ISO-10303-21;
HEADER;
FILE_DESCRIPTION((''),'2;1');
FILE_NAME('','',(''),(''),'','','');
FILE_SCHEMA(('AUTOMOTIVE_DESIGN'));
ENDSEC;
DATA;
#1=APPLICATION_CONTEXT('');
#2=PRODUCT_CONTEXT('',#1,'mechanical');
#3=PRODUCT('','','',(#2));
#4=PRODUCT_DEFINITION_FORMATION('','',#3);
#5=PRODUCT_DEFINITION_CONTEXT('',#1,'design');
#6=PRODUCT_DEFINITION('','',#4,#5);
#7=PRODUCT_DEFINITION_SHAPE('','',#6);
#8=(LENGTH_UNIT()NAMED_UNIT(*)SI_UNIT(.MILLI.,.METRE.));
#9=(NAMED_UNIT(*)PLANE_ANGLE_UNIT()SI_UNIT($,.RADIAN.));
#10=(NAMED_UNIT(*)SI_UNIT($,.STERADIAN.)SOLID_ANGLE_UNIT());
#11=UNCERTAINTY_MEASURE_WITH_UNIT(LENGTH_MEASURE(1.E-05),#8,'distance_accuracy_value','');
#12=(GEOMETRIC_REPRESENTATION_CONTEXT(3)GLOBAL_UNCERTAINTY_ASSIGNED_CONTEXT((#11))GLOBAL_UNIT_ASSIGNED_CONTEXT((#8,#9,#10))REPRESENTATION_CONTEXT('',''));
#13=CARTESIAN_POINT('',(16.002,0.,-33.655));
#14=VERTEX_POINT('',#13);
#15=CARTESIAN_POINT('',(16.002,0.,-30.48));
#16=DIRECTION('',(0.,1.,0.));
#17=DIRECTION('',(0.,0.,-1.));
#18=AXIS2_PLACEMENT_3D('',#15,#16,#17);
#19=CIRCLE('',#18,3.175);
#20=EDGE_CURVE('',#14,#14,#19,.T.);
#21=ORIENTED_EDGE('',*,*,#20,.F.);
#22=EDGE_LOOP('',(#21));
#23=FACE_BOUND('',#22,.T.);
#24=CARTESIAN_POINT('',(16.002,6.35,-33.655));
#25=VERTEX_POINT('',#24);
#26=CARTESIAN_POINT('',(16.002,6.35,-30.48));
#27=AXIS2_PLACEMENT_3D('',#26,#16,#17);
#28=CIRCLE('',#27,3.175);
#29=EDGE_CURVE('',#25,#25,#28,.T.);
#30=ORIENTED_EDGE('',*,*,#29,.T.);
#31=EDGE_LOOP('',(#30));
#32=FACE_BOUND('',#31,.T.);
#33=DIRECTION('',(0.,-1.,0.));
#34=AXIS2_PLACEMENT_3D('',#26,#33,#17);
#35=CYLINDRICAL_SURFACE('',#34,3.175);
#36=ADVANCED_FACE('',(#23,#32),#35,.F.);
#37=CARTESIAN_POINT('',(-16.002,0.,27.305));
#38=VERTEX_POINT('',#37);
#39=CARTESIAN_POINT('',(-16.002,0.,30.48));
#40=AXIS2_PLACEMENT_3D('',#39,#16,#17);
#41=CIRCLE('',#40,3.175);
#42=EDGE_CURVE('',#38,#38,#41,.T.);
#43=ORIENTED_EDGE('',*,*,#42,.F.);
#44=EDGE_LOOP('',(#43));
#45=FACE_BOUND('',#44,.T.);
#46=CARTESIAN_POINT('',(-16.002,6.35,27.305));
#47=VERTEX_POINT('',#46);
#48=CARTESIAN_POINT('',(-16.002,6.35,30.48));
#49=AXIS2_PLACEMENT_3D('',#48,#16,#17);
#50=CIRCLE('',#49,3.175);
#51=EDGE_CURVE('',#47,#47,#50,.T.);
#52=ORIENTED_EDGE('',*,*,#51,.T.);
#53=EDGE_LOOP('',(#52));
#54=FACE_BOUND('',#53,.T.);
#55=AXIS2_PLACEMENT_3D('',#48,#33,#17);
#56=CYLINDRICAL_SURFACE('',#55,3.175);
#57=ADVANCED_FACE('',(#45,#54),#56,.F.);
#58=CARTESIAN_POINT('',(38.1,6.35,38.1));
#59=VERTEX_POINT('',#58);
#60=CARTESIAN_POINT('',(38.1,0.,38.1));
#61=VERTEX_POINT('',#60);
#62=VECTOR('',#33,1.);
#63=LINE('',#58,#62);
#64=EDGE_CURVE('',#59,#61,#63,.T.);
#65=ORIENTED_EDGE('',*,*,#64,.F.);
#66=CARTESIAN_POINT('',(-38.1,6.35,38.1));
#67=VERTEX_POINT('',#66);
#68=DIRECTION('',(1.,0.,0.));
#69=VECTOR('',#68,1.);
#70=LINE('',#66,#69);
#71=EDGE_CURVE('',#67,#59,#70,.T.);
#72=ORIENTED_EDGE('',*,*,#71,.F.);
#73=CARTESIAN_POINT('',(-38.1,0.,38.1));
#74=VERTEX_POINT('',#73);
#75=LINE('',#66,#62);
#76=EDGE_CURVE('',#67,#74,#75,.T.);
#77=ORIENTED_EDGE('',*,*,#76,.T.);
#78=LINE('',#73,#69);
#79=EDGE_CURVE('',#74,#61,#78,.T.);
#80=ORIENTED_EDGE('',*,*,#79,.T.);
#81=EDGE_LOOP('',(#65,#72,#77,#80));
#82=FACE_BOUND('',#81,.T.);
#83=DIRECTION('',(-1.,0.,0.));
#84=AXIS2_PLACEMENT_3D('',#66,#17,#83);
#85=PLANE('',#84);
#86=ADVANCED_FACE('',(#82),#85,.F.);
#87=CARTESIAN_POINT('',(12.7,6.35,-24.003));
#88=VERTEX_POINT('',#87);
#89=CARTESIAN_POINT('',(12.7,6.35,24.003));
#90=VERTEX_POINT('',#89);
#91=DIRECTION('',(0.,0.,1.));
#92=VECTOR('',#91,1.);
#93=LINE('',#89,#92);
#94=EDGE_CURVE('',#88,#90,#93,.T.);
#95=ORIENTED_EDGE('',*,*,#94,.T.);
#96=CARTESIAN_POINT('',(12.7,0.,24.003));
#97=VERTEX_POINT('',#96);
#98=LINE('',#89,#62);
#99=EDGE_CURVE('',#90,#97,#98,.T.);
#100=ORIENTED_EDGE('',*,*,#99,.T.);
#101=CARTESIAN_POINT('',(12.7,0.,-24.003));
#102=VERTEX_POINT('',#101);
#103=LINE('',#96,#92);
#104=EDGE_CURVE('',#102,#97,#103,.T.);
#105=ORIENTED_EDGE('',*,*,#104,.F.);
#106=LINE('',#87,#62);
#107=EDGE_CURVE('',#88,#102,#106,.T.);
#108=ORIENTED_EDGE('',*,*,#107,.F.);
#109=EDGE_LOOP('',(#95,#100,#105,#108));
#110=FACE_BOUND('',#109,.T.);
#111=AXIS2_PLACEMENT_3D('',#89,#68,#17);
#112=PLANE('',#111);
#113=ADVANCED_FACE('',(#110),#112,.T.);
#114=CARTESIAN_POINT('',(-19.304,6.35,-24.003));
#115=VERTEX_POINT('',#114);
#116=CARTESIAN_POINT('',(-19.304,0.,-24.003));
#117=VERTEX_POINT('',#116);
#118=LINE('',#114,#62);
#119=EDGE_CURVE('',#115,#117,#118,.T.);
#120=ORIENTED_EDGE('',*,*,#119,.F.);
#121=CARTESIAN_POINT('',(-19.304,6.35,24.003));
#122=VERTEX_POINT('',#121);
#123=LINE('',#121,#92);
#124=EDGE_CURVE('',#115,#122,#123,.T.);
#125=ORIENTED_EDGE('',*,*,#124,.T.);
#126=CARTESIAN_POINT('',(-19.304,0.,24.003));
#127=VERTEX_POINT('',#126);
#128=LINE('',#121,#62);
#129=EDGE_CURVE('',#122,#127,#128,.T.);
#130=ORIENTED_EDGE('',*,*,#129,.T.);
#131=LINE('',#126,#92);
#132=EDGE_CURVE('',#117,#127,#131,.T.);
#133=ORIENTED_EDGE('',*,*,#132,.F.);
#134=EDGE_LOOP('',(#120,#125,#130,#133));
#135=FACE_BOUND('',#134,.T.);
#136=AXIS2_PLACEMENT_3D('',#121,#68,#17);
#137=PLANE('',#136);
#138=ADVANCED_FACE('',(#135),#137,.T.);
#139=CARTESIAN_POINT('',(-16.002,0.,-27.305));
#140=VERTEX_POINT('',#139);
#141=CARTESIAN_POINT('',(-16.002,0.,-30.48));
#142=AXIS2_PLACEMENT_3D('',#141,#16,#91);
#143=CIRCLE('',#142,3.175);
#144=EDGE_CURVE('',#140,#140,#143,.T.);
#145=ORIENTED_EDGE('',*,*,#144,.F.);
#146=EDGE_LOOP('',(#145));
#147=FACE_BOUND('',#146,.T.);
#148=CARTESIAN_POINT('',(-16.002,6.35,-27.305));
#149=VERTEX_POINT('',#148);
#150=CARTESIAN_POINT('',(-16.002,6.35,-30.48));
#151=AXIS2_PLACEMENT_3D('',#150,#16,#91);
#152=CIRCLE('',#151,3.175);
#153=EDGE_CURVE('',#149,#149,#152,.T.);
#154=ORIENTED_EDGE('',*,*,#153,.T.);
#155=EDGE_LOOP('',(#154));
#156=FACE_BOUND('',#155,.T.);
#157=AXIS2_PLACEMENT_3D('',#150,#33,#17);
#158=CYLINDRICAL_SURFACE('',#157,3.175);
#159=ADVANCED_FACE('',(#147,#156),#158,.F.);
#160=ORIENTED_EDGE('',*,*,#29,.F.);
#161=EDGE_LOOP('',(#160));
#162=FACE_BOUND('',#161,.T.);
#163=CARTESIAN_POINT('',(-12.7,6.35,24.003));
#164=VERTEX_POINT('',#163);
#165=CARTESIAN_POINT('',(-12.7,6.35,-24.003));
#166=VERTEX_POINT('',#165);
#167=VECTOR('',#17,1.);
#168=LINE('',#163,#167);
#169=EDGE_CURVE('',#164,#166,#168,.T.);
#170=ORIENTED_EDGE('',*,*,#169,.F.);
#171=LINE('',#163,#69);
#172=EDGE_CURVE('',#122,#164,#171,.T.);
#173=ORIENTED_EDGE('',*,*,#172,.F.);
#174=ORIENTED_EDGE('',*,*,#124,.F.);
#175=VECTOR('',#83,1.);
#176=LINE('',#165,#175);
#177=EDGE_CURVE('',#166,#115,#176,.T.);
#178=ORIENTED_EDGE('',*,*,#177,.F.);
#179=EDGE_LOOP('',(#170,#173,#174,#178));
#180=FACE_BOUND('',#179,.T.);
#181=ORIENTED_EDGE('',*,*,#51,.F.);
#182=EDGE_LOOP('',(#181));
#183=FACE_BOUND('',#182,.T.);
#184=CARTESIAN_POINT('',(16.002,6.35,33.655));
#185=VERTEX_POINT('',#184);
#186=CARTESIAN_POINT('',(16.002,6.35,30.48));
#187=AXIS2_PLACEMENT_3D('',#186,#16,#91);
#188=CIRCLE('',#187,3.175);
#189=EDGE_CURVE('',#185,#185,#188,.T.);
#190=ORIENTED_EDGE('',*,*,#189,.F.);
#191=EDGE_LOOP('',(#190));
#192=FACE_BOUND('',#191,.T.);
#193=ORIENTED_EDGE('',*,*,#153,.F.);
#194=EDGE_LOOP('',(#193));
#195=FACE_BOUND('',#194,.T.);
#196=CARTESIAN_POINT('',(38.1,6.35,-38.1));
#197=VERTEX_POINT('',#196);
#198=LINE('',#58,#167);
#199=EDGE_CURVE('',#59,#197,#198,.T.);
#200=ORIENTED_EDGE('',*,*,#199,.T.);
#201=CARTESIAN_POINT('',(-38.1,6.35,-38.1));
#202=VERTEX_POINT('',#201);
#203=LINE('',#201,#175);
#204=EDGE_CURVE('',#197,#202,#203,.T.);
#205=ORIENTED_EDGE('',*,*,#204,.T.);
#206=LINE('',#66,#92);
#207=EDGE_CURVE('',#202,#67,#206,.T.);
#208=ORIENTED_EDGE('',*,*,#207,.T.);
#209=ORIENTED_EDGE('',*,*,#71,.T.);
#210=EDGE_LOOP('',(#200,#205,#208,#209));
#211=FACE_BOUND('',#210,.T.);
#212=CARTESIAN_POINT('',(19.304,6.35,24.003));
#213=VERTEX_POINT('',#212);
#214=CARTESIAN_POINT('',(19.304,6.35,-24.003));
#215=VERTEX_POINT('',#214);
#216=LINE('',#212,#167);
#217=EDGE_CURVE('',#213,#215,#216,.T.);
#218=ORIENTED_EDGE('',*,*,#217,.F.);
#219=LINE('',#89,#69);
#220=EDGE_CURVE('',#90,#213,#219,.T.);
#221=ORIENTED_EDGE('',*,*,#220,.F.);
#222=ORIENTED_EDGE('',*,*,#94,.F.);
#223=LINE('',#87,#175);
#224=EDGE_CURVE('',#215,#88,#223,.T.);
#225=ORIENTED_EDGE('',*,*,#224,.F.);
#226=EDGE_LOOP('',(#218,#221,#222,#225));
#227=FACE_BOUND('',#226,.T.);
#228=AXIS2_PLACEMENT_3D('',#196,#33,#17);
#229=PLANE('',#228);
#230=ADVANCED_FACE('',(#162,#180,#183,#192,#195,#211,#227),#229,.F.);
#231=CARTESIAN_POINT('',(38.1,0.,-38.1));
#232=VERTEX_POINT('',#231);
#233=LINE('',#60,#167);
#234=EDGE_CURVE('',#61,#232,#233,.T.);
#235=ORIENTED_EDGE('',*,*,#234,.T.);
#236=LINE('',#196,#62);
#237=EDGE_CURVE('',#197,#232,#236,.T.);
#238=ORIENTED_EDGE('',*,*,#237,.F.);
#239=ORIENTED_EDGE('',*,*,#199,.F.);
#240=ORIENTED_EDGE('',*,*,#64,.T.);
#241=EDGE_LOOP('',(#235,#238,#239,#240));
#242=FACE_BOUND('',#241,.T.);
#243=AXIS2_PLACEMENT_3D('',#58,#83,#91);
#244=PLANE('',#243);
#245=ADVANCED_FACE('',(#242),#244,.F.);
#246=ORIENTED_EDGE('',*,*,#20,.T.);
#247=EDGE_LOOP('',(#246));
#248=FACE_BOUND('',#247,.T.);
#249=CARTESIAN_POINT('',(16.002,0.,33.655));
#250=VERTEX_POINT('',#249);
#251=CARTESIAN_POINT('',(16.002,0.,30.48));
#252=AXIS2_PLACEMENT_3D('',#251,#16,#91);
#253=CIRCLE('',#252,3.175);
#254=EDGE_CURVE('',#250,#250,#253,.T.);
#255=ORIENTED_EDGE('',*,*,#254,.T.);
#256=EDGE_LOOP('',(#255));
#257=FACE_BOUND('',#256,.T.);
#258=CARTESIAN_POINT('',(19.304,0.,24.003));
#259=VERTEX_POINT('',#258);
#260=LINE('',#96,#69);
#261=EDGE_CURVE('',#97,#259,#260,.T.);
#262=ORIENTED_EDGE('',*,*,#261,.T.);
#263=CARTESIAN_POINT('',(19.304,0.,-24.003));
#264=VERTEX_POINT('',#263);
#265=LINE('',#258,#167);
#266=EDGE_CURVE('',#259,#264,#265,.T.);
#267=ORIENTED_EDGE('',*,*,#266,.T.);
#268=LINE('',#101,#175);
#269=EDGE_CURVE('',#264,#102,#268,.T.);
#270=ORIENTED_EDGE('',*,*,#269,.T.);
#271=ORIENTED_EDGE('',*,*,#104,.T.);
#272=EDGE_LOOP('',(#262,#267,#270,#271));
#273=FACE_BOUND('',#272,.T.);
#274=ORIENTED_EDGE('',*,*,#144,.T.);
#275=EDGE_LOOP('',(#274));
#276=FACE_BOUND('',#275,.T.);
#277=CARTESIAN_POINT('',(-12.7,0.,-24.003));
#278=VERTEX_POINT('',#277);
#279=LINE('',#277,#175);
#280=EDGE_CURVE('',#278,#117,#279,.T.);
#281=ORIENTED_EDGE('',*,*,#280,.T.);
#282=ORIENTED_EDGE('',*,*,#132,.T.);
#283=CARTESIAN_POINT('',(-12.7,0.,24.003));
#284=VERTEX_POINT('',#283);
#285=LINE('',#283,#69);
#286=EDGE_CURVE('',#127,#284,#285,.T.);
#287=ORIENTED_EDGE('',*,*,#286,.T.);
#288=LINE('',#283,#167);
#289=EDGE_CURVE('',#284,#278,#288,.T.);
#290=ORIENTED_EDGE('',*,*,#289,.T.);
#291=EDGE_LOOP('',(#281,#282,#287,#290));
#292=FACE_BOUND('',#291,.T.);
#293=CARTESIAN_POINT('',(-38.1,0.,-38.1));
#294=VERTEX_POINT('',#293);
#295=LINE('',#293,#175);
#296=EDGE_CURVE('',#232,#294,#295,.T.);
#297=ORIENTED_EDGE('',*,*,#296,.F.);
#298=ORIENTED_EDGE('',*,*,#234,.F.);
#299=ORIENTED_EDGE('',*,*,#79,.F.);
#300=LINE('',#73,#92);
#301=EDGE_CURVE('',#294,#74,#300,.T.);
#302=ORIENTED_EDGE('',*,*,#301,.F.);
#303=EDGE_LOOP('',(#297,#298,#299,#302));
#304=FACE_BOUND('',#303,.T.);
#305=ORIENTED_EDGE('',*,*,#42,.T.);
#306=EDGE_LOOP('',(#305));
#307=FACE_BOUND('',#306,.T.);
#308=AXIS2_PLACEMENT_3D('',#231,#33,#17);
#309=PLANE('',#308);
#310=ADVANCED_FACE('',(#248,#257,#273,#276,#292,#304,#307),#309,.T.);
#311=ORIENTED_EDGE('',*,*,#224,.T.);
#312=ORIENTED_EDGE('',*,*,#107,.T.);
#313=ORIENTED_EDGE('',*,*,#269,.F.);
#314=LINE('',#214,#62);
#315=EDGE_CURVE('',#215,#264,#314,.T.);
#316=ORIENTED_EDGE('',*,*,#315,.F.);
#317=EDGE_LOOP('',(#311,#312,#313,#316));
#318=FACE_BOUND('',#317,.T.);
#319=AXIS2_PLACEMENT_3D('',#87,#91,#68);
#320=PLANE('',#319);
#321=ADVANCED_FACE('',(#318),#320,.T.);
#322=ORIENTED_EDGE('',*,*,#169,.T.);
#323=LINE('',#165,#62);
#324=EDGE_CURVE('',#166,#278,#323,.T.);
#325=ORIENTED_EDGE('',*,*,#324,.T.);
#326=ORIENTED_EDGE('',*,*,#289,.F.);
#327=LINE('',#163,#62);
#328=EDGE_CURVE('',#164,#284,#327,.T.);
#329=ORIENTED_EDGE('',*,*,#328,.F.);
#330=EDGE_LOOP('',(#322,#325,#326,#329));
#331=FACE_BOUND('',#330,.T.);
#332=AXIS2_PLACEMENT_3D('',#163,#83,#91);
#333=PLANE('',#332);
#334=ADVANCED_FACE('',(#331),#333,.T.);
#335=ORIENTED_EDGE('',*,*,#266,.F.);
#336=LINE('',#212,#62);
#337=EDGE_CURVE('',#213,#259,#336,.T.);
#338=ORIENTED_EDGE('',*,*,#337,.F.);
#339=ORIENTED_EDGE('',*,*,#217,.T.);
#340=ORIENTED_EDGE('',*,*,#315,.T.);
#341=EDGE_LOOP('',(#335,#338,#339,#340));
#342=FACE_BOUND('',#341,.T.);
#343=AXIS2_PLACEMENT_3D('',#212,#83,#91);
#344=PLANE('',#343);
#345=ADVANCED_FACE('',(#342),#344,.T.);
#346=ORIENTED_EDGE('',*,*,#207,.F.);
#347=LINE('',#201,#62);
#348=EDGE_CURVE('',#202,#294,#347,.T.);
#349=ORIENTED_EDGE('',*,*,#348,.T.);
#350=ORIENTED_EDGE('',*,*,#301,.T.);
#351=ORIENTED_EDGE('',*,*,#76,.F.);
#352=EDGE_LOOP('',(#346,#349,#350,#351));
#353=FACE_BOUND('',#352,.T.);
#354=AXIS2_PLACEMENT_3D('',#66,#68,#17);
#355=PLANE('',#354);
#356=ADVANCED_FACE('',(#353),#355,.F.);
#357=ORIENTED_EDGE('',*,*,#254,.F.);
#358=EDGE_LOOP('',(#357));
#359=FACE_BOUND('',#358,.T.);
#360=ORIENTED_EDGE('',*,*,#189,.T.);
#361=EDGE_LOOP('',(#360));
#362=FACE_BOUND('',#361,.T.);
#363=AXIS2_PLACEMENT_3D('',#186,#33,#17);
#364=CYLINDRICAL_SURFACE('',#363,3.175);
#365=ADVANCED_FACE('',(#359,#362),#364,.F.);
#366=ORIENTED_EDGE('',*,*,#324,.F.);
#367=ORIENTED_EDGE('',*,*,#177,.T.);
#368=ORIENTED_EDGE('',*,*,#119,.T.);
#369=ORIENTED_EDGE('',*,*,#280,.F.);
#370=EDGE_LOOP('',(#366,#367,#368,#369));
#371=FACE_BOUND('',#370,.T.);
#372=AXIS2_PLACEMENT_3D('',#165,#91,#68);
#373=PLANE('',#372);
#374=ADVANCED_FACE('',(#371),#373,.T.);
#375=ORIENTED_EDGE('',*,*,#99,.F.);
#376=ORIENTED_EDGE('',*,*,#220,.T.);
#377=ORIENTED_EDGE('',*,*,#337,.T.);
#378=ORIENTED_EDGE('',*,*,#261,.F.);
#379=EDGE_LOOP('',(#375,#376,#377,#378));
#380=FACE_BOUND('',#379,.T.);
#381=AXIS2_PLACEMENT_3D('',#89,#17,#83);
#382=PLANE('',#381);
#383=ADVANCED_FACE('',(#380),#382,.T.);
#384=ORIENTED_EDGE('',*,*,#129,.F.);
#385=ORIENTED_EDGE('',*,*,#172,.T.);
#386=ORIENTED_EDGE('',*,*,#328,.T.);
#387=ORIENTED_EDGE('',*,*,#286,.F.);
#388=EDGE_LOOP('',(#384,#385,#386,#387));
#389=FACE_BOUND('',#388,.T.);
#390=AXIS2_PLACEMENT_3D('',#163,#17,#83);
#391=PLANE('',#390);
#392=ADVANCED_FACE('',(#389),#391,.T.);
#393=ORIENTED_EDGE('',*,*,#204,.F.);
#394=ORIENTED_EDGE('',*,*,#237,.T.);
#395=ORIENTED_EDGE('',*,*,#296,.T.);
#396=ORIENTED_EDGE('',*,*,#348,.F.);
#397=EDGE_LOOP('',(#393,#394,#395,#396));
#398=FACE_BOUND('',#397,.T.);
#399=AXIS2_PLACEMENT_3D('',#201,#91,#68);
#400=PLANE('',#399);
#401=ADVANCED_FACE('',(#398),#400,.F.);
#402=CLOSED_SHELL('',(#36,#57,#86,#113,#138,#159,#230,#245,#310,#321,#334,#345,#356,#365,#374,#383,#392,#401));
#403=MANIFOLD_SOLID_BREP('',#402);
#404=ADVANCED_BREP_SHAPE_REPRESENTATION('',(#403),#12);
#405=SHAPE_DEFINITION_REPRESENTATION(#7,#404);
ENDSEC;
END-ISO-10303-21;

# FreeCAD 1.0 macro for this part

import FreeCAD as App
import Part
import Sketcher
from FreeCAD import Vector
Q = App.Units.Quantity

doc = App.newDocument("Part")
body = doc.addObject("PartDesign::Body", "Body")

# Sketch on XZ plane
sketch1 = doc.addObject("Sketcher::SketchObject", "Sketch")
body.addObject(sketch1)
sketch1.AttachmentSupport = (doc.XZ_Plane, [""])
sketch1.MapMode = "FlatFace"
sketch1.addGeometry(Part.LineSegment(Vector(-38, -38, 0), Vector(-38, 38, 0)), False)
sketch1.addGeometry(Part.LineSegment(Vector(-38, 38, 0), Vector(38, 38, 0)), False)
sketch1.addGeometry(Part.LineSegment(Vector(38, 38, 0), Vector(38, -38, 0)), False)
sketch1.addGeometry(Part.LineSegment(Vector(38, -38, 0), Vector(-38, -38, 0)), False)
sketch1.addConstraint(Sketcher.Constraint("Coincident", 0, 2, 1, 1))
sketch1.addConstraint(Sketcher.Constraint("Coincident", 1, 2, 2, 1))
sketch1.addConstraint(Sketcher.Constraint("Coincident", 2, 2, 3, 1))
sketch1.addConstraint(Sketcher.Constraint("Coincident", 3, 2, 0, 1))
sketch1.addConstraint(Sketcher.Constraint("Vertical", 0))
sketch1.addConstraint(Sketcher.Constraint("Horizontal", 1))
sketch1.addConstraint(Sketcher.Constraint("Vertical", 2))
sketch1.addConstraint(Sketcher.Constraint("Horizontal", 3))
sketch1.addConstraint(Sketcher.Constraint("Symmetric", 0, 2, 2, 2, -1, 1))
sketch1.addConstraint(Sketcher.Constraint("Equal", 3, 0))
sketch1.addConstraint(Sketcher.Constraint("DistanceX", 1, 1, 1, 2, Q("3 in")))
pad1 = doc.addObject("PartDesign::Pad", "Pad")
body.addObject(pad1)
pad1.Profile = sketch1
pad1.Length = Q("0.25 in")
pad1.Reversed = True

# Sketch on XZ plane
sketch2 = doc.addObject("Sketcher::SketchObject", "Sketch001")
body.addObject(sketch2)
sketch2.AttachmentSupport = (doc.XZ_Plane, [""])
sketch2.MapMode = "FlatFace"
sketch2.addGeometry(Part.LineSegment(Vector(13, -24, 0), Vector(13, 24, 0)), False)
sketch2.addGeometry(Part.LineSegment(Vector(13, 24, 0), Vector(19, 24, 0)), False)
sketch2.addGeometry(Part.LineSegment(Vector(19, 24, 0), Vector(19, -24, 0)), False)
sketch2.addGeometry(Part.LineSegment(Vector(19, -24, 0), Vector(13, -24, 0)), False)
sketch2.addGeometry(Part.LineSegment(Vector(-19, -24, 0), Vector(-19, 24, 0)), False)
sketch2.addGeometry(Part.LineSegment(Vector(-19, 24, 0), Vector(-13, 24, 0)), False)
sketch2.addGeometry(Part.LineSegment(Vector(-13, 24, 0), Vector(-13, -24, 0)), False)
sketch2.addGeometry(Part.LineSegment(Vector(-13, -24, 0), Vector(-19, -24, 0)), False)
sketch2.addConstraint(Sketcher.Constraint("Coincident", 0, 2, 1, 1))
sketch2.addConstraint(Sketcher.Constraint("Coincident", 1, 2, 2, 1))
sketch2.addConstraint(Sketcher.Constraint("Coincident", 2, 2, 3, 1))
sketch2.addConstraint(Sketcher.Constraint("Coincident", 3, 2, 0, 1))
sketch2.addConstraint(Sketcher.Constraint("Coincident", 4, 2, 5, 1))
sketch2.addConstraint(Sketcher.Constraint("Coincident", 5, 2, 6, 1))
sketch2.addConstraint(Sketcher.Constraint("Coincident", 6, 2, 7, 1))
sketch2.addConstraint(Sketcher.Constraint("Coincident", 7, 2, 4, 1))
sketch2.addConstraint(Sketcher.Constraint("Vertical", 0))
sketch2.addConstraint(Sketcher.Constraint("Horizontal", 1))
sketch2.addConstraint(Sketcher.Constraint("Vertical", 2))
sketch2.addConstraint(Sketcher.Constraint("Horizontal", 3))
sketch2.addConstraint(Sketcher.Constraint("Vertical", 4))
sketch2.addConstraint(Sketcher.Constraint("Horizontal", 5))
sketch2.addConstraint(Sketcher.Constraint("Vertical", 6))
sketch2.addConstraint(Sketcher.Constraint("Horizontal", 7))
sketch2.addConstraint(Sketcher.Constraint("Symmetric", 2, 2, 4, 2, -1, 1))
sketch2.addConstraint(Sketcher.Constraint("Symmetric", 0, 2, 6, 2, -1, 1))
sketch2.addConstraint(Sketcher.Constraint("Horizontal", 1, 2, 4, 2))
sketch2.addConstraint(Sketcher.Constraint("DistanceX", 5, 2, 0, 2, Q("1 in")))
sketch2.addConstraint(Sketcher.Constraint("DistanceX", 1, 1, 1, 2, Q("0.26 in")))
sketch2.addConstraint(Sketcher.Constraint("DistanceY", 0, 1, 0, 2, Q("1.89 in")))
pocket1 = doc.addObject("PartDesign::Pocket", "Pocket")
body.addObject(pocket1)
pocket1.Profile = sketch2
pocket1.Type = "ThroughAll"

# Sketch on XZ plane
sketch3 = doc.addObject("Sketcher::SketchObject", "Sketch002")
body.addObject(sketch3)
sketch3.AttachmentSupport = (doc.XZ_Plane, [""])
sketch3.MapMode = "FlatFace"
sketch3.addGeometry(Part.Circle(Vector(-16, -30.5, 0), Vector(0, 0, 1), 3.2), False)
sketch3.addGeometry(Part.Circle(Vector(-16, 30.5, 0), Vector(0, 0, 1), 3.2), False)
sketch3.addGeometry(Part.Circle(Vector(16, 30.5, 0), Vector(0, 0, 1), 3.2), False)
sketch3.addGeometry(Part.Circle(Vector(16, -30.5, 0), Vector(0, 0, 1), 3.2), False)
sketch3.addConstraint(Sketcher.Constraint("Equal", 0, 1))
sketch3.addConstraint(Sketcher.Constraint("Equal", 1, 2))
sketch3.addConstraint(Sketcher.Constraint("Equal", 2, 3))
sketch3.addConstraint(Sketcher.Constraint("Symmetric", 0, 3, 2, 3, -1, 1))
sketch3.addConstraint(Sketcher.Constraint("Symmetric", 1, 3, 3, 3, -1, 1))
sketch3.addConstraint(Sketcher.Constraint("Symmetric", 1, 3, 2, 3, -2))
sketch3.addConstraint(Sketcher.Constraint("Diameter", 0, Q("0.25 in")))
sketch3.addConstraint(Sketcher.Constraint("DistanceY", 0, 3, -1, 1, Q("1.2 in")))
sketch3.addConstraint(Sketcher.Constraint("DistanceX", 0, 3, -1, 1, Q("0.63 in")))
pocket2 = doc.addObject("PartDesign::Pocket", "Pocket001")
body.addObject(pocket2)
pocket2.Profile = sketch3
pocket2.Type = "ThroughAll"

doc.recompute()
